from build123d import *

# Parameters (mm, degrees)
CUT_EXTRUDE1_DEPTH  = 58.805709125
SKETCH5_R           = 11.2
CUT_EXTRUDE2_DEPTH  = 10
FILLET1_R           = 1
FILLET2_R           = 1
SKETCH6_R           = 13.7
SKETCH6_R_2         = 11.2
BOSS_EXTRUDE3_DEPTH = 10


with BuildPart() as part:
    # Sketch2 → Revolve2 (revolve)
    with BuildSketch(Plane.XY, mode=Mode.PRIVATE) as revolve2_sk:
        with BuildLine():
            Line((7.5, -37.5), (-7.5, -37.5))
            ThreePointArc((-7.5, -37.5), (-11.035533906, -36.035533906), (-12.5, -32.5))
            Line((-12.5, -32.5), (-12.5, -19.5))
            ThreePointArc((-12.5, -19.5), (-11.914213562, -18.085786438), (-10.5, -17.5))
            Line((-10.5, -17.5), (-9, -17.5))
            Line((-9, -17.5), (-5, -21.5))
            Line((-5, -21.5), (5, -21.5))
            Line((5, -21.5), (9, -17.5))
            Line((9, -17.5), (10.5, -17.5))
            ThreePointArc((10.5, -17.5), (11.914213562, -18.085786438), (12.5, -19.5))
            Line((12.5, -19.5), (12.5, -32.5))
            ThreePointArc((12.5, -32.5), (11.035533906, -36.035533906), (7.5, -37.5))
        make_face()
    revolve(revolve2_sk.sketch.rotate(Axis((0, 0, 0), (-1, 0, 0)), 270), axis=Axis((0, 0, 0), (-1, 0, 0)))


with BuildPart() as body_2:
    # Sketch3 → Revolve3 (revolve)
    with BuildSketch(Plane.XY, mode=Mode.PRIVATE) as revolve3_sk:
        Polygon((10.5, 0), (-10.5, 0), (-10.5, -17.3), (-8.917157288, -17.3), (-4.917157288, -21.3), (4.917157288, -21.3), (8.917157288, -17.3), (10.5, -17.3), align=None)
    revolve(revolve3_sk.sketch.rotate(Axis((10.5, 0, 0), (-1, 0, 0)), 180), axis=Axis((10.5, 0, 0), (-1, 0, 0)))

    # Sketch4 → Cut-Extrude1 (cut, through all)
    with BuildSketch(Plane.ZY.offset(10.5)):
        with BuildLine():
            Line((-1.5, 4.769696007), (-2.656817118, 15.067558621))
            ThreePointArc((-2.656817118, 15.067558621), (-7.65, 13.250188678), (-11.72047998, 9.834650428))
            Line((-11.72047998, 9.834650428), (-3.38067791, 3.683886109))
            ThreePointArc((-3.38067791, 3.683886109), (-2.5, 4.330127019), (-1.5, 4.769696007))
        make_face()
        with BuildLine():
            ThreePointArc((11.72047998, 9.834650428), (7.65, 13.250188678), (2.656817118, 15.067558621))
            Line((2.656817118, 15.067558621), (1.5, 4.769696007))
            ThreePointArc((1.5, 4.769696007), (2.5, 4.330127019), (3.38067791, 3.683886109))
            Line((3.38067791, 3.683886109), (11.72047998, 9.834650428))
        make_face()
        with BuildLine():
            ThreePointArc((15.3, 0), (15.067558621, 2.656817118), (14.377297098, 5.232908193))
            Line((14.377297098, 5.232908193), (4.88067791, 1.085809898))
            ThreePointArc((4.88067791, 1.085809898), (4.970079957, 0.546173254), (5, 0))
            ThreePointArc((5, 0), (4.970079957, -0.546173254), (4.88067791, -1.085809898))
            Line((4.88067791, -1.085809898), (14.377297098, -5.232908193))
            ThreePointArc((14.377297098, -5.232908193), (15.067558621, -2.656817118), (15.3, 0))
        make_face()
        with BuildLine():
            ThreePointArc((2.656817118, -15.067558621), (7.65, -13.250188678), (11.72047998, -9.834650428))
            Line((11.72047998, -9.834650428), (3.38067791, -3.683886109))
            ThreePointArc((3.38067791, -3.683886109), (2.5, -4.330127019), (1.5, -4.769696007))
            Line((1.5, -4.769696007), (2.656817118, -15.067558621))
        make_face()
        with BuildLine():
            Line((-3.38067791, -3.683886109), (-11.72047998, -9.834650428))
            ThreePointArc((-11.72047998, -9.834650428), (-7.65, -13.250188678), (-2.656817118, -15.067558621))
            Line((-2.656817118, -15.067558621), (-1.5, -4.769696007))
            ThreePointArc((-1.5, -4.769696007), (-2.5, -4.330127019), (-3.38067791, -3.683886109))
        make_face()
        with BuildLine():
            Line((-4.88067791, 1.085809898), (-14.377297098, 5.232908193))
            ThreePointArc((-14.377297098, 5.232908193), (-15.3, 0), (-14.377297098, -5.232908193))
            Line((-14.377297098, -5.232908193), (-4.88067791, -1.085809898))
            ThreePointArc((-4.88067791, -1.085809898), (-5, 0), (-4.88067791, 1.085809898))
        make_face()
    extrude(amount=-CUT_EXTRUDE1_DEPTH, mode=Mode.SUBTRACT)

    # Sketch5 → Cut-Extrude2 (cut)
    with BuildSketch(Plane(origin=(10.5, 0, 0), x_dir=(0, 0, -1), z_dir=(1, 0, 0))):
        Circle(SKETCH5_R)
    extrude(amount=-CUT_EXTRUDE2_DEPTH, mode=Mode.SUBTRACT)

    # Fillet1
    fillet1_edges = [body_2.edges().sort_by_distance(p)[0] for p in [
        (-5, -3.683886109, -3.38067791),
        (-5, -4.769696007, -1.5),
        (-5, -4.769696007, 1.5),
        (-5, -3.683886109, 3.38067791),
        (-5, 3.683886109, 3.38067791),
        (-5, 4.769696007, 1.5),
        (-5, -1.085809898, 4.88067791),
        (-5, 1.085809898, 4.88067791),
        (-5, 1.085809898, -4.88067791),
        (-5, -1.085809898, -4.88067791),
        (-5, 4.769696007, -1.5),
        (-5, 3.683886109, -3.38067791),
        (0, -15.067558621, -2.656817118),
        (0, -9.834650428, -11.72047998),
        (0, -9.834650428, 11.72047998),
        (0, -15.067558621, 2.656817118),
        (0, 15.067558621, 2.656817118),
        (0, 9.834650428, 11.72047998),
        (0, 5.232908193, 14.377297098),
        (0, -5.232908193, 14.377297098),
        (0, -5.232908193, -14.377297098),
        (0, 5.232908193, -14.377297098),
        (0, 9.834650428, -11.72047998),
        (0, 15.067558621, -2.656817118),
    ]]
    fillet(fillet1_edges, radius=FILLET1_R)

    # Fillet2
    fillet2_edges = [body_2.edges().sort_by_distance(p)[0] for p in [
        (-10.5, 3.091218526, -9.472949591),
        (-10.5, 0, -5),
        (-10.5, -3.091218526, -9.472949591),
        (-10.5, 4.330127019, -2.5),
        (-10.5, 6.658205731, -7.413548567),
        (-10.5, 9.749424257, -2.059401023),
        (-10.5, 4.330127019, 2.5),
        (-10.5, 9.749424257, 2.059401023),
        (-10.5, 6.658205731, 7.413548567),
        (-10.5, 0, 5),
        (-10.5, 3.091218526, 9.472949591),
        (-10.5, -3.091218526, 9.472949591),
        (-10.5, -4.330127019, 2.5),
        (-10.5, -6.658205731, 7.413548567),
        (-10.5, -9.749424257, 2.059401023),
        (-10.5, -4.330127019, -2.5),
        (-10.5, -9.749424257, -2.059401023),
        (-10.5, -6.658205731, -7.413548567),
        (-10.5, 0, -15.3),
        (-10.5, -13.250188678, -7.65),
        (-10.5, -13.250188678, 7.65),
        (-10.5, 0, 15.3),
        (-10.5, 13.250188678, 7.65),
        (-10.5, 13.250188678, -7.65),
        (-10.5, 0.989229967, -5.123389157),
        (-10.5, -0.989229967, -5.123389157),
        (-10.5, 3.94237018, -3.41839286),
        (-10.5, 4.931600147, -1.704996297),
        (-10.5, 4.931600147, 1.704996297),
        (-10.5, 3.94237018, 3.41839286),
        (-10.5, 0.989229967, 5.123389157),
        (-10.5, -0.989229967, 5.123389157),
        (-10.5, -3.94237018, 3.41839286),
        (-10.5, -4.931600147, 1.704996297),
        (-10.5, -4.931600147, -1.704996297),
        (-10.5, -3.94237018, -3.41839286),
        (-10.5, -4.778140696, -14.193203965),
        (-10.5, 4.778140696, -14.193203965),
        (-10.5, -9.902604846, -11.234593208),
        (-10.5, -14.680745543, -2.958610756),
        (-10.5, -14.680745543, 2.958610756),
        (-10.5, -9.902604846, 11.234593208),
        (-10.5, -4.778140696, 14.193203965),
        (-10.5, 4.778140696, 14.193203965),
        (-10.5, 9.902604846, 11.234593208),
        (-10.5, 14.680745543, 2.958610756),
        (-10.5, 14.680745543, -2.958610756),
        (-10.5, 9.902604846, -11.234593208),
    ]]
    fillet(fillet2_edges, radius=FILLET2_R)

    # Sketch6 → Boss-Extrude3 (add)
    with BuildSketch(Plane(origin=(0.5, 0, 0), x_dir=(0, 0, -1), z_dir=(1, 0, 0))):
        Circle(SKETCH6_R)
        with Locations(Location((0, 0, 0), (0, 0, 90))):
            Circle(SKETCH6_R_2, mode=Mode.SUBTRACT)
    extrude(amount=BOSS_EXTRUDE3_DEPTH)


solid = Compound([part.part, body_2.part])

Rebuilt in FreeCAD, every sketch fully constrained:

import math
import FreeCAD as App
import Part
import Sketcher

V = App.Vector


def edges_at(feature, points):
    """Names of the edges that pass closest to the given points."""
    edges = feature.Shape.Edges
    near = lambda p: min(range(len(edges)), key=lambda i: edges[i].distToShape(Part.Vertex(*p))[0])
    return sorted({f"Edge{near(p) + 1}" for p in points})


def add_polygon(sketch, points):
    """Adds a closed chain of lines whose ends are joined by coincident constraints."""
    first, n = sketch.GeometryCount, len(points)
    for a, b in zip(points, points[1:] + points[:1]):
        sketch.addGeometry(Part.LineSegment(App.Vector(*a, 0), App.Vector(*b, 0)), False)
    for i in range(n):
        sketch.addConstraint(Sketcher.Constraint("Coincident", first + i, 2, first + (i + 1) % n, 1))

doc = App.newDocument("Part")
params = doc.addObject("Spreadsheet::Sheet", "Params")
for row, (alias, value) in enumerate([
    ("sketch1_radius", "5 mm"),
    ("sketch1_radius2", "2 mm"),
    ("sketch1_width", "15 mm"),
    ("sketch1_width2", "10 mm"),
    ("sketch1_height", "13 mm"),
    ("revolution_angle", "360 deg"),
    ("sketch2_width", "21 mm"),
    ("sketch2_height", "17.3 mm"),
    ("revolution2_angle", "360 deg"),
    ("sketch3_radius", "5 mm"),
    ("sketch3_radius2", "15.3 mm"),
    ("sketch4_diameter", "22.4 mm"),
    ("pocket2_length", "10 mm"),
    ("fillet_radius", "1 mm"),
    ("fillet2_radius", "1 mm"),
    ("sketch5_diameter", "27.4 mm"),
    ("sketch5_diameter2", "22.4 mm"),
    ("pad1_length", "10 mm"),
], start=1):
    params.set(f"A{row}", alias)
    params.set(f"B{row}", "=" + value)
    params.setAlias(f"B{row}", alias)

body = doc.addObject("PartDesign::Body", "Body")

sketch1 = body.newObject("Sketcher::SketchObject", "Sketch")
sketch1.AttachmentSupport = (doc.getObject("XY_Plane"), [""])
sketch1.MapMode = "FlatFace"
sketch1.addGeometry([
    Part.LineSegment(V(-7.5, -37.5, 0), V(7.5, -37.5, 0)),
    Part.ArcOfCircle(Part.Circle(V(7.5, -32.5, 0), V(0, 0, 1), 5), math.radians(-90), math.radians(0)),
    Part.LineSegment(V(12.5, -32.5, 0), V(12.5, -19.5, 0)),
    Part.ArcOfCircle(Part.Circle(V(10.5, -19.5, 0), V(0, 0, 1), 2), math.radians(0), math.radians(90)),
    Part.LineSegment(V(10.5, -17.5, 0), V(9, -17.5, 0)),
    Part.LineSegment(V(9, -17.5, 0), V(5, -21.5, 0)),
    Part.LineSegment(V(5, -21.5, 0), V(-5, -21.5, 0)),
    Part.LineSegment(V(-5, -21.5, 0), V(-9, -17.5, 0)),
    Part.LineSegment(V(-9, -17.5, 0), V(-10.5, -17.5, 0)),
    Part.ArcOfCircle(Part.Circle(V(-10.5, -19.5, 0), V(0, 0, 1), 2), math.radians(90), math.radians(180)),
    Part.LineSegment(V(-12.5, -19.5, 0), V(-12.5, -32.5, 0)),
    Part.ArcOfCircle(Part.Circle(V(-7.5, -32.5, 0), V(0, 0, 1), 5), math.radians(180), math.radians(270)),
], False)
sketch1.addConstraint([
    Sketcher.Constraint("Tangent", 0, 2, 1, 1),
    Sketcher.Constraint("Tangent", 1, 2, 2, 1),
    Sketcher.Constraint("Tangent", 2, 2, 3, 1),
    Sketcher.Constraint("Tangent", 3, 2, 4, 1),
    Sketcher.Constraint("Coincident", 4, 2, 5, 1),
    Sketcher.Constraint("Coincident", 5, 2, 6, 1),
    Sketcher.Constraint("Coincident", 6, 2, 7, 1),
    Sketcher.Constraint("Coincident", 7, 2, 8, 1),
    Sketcher.Constraint("Tangent", 8, 2, 9, 1),
    Sketcher.Constraint("Tangent", 9, 2, 10, 1),
    Sketcher.Constraint("Tangent", 10, 2, 11, 1),
    Sketcher.Constraint("Tangent", 11, 2, 0, 1),
    Sketcher.Constraint("Horizontal", 0),
    Sketcher.Constraint("Vertical", 2),
    Sketcher.Constraint("Horizontal", 4),
    Sketcher.Constraint("Horizontal", 6),
    Sketcher.Constraint("Horizontal", 8),
    Sketcher.Constraint("Vertical", 10),
    Sketcher.Constraint("Equal", 3, 9),
    Sketcher.Constraint("Equal", 1, 11),
    Sketcher.Constraint("Symmetric", 3, 3, 9, 3, -2),
    Sketcher.Constraint("Perpendicular", 5, 7),
    Sketcher.Constraint("Equal", 4, 8),
    Sketcher.Constraint("Equal", 5, 7),
    Sketcher.Constraint("Radius", 1, 5.0),
    Sketcher.Constraint("Radius", 3, 2.0),
    Sketcher.Constraint("DistanceX", 0, 1, 0, 2, 15.0),
    Sketcher.Constraint("DistanceX", 6, 2, 6, 1, 10.0),
    Sketcher.Constraint("DistanceY", 2, 1, 2, 2, 13.0),
    Sketcher.Constraint("DistanceX", 4, 2, 4, 1, 1.5),
    Sketcher.Constraint("DistanceY", 1, 3, -1, 1, 32.5),
])
sketch1.setExpression("Constraints[24]", "Params.sketch1_radius")
sketch1.setExpression("Constraints[25]", "Params.sketch1_radius2")
sketch1.setExpression("Constraints[26]", "Params.sketch1_width")
sketch1.setExpression("Constraints[27]", "Params.sketch1_width2")
sketch1.setExpression("Constraints[28]", "Params.sketch1_height")
revolution = body.newObject("PartDesign::Revolution", "Revolution")
revolution.Profile = sketch1
revolution.ReferenceAxis = (sketch1, ["H_Axis"])
revolution.setExpression("Angle", "Params.revolution_angle")
body2 = doc.addObject("PartDesign::Body", "Body001")

sketch2 = body2.newObject("Sketcher::SketchObject", "Sketch001")
sketch2.AttachmentSupport = (doc.getObject("XY_Plane001"), [""])
sketch2.MapMode = "FlatFace"
add_polygon(sketch2, [(10.5, 0), (-10.5, 0), (-10.5, -17.3), (-8.9, -17.3), (-4.9, -21.3), (4.9, -21.3), (8.9, -17.3), (10.5, -17.3)])
sketch2.addConstraint([
    Sketcher.Constraint("Horizontal", 0),
    Sketcher.Constraint("Vertical", 1),
    Sketcher.Constraint("Horizontal", 2),
    Sketcher.Constraint("Horizontal", 4),
    Sketcher.Constraint("Horizontal", 6),
    Sketcher.Constraint("Vertical", 7),
    Sketcher.Constraint("Symmetric", 0, 2, 7, 2, -1, 1),
    Sketcher.Constraint("Symmetric", 2, 2, 5, 2, -2),
    Sketcher.Constraint("Perpendicular", 3, 5),
    Sketcher.Constraint("Equal", 3, 5),
    Sketcher.Constraint("DistanceX", 0, 2, 0, 1, 21.0),
    Sketcher.Constraint("DistanceY", 1, 2, 1, 1, 17.3),
    Sketcher.Constraint("DistanceX", 2, 2, 3, 2, 4.0),
    Sketcher.Constraint("DistanceX", 2, 1, 2, 2, 1.582843),
])
sketch2.setExpression("Constraints[18]", "Params.sketch2_width")
sketch2.setExpression("Constraints[19]", "Params.sketch2_height")
revolution2 = body2.newObject("PartDesign::Revolution", "Revolution001")
revolution2.Profile = sketch2
revolution2.ReferenceAxis = (sketch2, ["H_Axis"])
revolution2.setExpression("Angle", "Params.revolution2_angle")

sketch3 = body2.newObject("Sketcher::SketchObject", "Sketch002")
sketch3.AttachmentSupport = (doc.getObject("YZ_Plane001"), [""])
sketch3.MapMode = "FlatFace"
sketch3.AttachmentOffset = App.Placement(V(0, 0, -10.5), App.Rotation())
sketch3.addGeometry([
    Part.LineSegment(V(4.8, -1.5, 0), V(15.1, -2.7, 0)),
    Part.ArcOfCircle(Part.Circle(V(0, 0, 0), V(0, 0, 1), 15.3), math.radians(-50), math.radians(-10)),
    Part.LineSegment(V(9.8, -11.7, 0), V(3.7, -3.4, 0)),
    Part.ArcOfCircle(Part.Circle(V(0, 0, 0), V(0, 0, 1), 5), math.radians(-43), math.radians(-17)),
    Part.ArcOfCircle(Part.Circle(V(0, 0, 0), V(0, 0, 1), 15.3), math.radians(10), math.radians(50)),
    Part.LineSegment(V(15.1, 2.7, 0), V(4.8, 1.5, 0)),
    Part.ArcOfCircle(Part.Circle(V(0, 0, 0), V(0, 0, 1), 5), math.radians(17), math.radians(43)),
    Part.LineSegment(V(3.7, 3.4, 0), V(9.8, 11.7, 0)),
    Part.ArcOfCircle(Part.Circle(V(0, 0, 0), V(0, 0, 1), 15.3), math.radians(70), math.radians(90)),
    Part.LineSegment(V(5.2, 14.4, 0), V(1.1, 4.9, 0)),
    Part.ArcOfCircle(Part.Circle(V(0, 0, 0), V(0, 0, 1), 5), math.radians(77.46), math.radians(90)),
    Part.ArcOfCircle(Part.Circle(V(0, 0, 0), V(0, 0, 1), 5), math.radians(90), math.radians(102.54)),
    Part.LineSegment(V(-1.1, 4.9, 0), V(-5.2, 14.4, 0)),
    Part.ArcOfCircle(Part.Circle(V(0, 0, 0), V(0, 0, 1), 15.3), math.radians(90), math.radians(110)),
    Part.ArcOfCircle(Part.Circle(V(0, 0, 0), V(0, 0, 1), 15.3), math.radians(130), math.radians(170)),
    Part.LineSegment(V(-9.8, 11.7, 0), V(-3.7, 3.4, 0)),
    Part.ArcOfCircle(Part.Circle(V(0, 0, 0), V(0, 0, 1), 5), math.radians(137), math.radians(163)),
    Part.LineSegment(V(-4.8, 1.5, 0), V(-15.1, 2.7, 0)),
    Part.LineSegment(V(-3.7, -3.4, 0), V(-9.8, -11.7, 0)),
    Part.ArcOfCircle(Part.Circle(V(0, 0, 0), V(0, 0, 1), 15.3), math.radians(-170), math.radians(-130)),
    Part.LineSegment(V(-15.1, -2.7, 0), V(-4.8, -1.5, 0)),
    Part.ArcOfCircle(Part.Circle(V(0, 0, 0), V(0, 0, 1), 5), math.radians(-163), math.radians(-137)),
    Part.LineSegment(V(1.1, -4.9, 0), V(5.2, -14.4, 0)),
    Part.ArcOfCircle(Part.Circle(V(0, 0, 0), V(0, 0, 1), 15.3), math.radians(-110), math.radians(-70)),
    Part.LineSegment(V(-5.2, -14.4, 0), V(-1.1, -4.9, 0)),
    Part.ArcOfCircle(Part.Circle(V(0, 0, 0), V(0, 0, 1), 5), math.radians(-103), math.radians(-77)),
], False)
sketch3.addConstraint([
    Sketcher.Constraint("Coincident", 0, 2, 1, 2),
    Sketcher.Constraint("Coincident", 1, 1, 2, 1),
    Sketcher.Constraint("Coincident", 2, 2, 3, 1),
    Sketcher.Constraint("Coincident", 3, 2, 0, 1),
    Sketcher.Constraint("Coincident", 4, 1, 5, 1),
    Sketcher.Constraint("Coincident", 5, 2, 6, 1),
    Sketcher.Constraint("Coincident", 6, 2, 7, 1),
    Sketcher.Constraint("Coincident", 7, 2, 4, 2),
    Sketcher.Constraint("Coincident", 8, 1, 9, 1),
    Sketcher.Constraint("Coincident", 9, 2, 10, 1),
    Sketcher.Constraint("Tangent", 10, 2, 11, 1),
    Sketcher.Constraint("Coincident", 11, 2, 12, 1),
    Sketcher.Constraint("Coincident", 12, 2, 13, 2),
    Sketcher.Constraint("Tangent", 13, 1, 8, 2),
    Sketcher.Constraint("Coincident", 14, 1, 15, 1),
    Sketcher.Constraint("Coincident", 15, 2, 16, 1),
    Sketcher.Constraint("Coincident", 16, 2, 17, 1),
    Sketcher.Constraint("Coincident", 17, 2, 14, 2),
    Sketcher.Constraint("Coincident", 18, 2, 19, 2),
    Sketcher.Constraint("Coincident", 19, 1, 20, 1),
    Sketcher.Constraint("Coincident", 20, 2, 21, 1),
    Sketcher.Constraint("Coincident", 21, 2, 18, 1),
    Sketcher.Constraint("Coincident", 22, 2, 23, 2),
    Sketcher.Constraint("Coincident", 23, 1, 24, 1),
    Sketcher.Constraint("Coincident", 24, 2, 25, 1),
    Sketcher.Constraint("Coincident", 25, 2, 22, 1),
    Sketcher.Constraint("Coincident", 1, 3, -1, 1),
    Sketcher.Constraint("Coincident", 3, 3, -1, 1),
    Sketcher.Constraint("Coincident", 4, 3, -1, 1),
    Sketcher.Constraint("Coincident", 6, 3, -1, 1),
    Sketcher.Constraint("Coincident", 8, 3, -1, 1),
    Sketcher.Constraint("Coincident", 10, 3, -1, 1),
    Sketcher.Constraint("Coincident", 14, 3, -1, 1),
    Sketcher.Constraint("Coincident", 16, 3, -1, 1),
    Sketcher.Constraint("Coincident", 19, 3, -1, 1),
    Sketcher.Constraint("Coincident", 21, 3, -1, 1),
    Sketcher.Constraint("Coincident", 23, 3, -1, 1),
    Sketcher.Constraint("Coincident", 25, 3, -1, 1),
    Sketcher.Constraint("Equal", 1, 4),
    Sketcher.Constraint("Equal", 3, 6),
    Sketcher.Constraint("Equal", 4, 8),
    Sketcher.Constraint("Equal", 6, 10),
    Sketcher.Constraint("Equal", 10, 11),
    Sketcher.Constraint("Equal", 8, 13),
    Sketcher.Constraint("Equal", 13, 14),
    Sketcher.Constraint("Equal", 11, 16),
    Sketcher.Constraint("Equal", 14, 19),
    Sketcher.Constraint("Equal", 16, 21),
    Sketcher.Constraint("Equal", 19, 23),
    Sketcher.Constraint("Equal", 21, 25),
    Sketcher.Constraint("PointOnObject", 10, 2, -2),
    Sketcher.Constraint("PointOnObject", 13, 1, -2),
    Sketcher.Constraint("Parallel", 2, 15),
    Sketcher.Constraint("Parallel", 0, 17),
    Sketcher.Constraint("Parallel", 7, 18),
    Sketcher.Constraint("Parallel", 5, 20),
    Sketcher.Constraint("Parallel", 12, 22),
    Sketcher.Constraint("Parallel", 9, 24),
    Sketcher.Constraint("Horizontal", 9, 2, 11, 2),
    Sketcher.Constraint("Horizontal", 8, 1, 12, 2),
    Sketcher.Constraint("Horizontal", 7, 2, 14, 1),
    Sketcher.Constraint("Horizontal", 6, 2, 15, 2),
    Sketcher.Constraint("Horizontal", 5, 2, 16, 2),
    Sketcher.Constraint("Horizontal", 4, 1, 17, 2),
    Sketcher.Constraint("Horizontal", 1, 1, 18, 2),
    Sketcher.Constraint("Horizontal", 0, 2, 19, 1),
    Sketcher.Constraint("Horizontal", 22, 2, 23, 1),
    Sketcher.Constraint("Vertical", 0, 2, 4, 1),
    Sketcher.Constraint("Vertical", 2, 2, 6, 2),
    Sketcher.Constraint("Vertical", 8, 1, 22, 2),
    Sketcher.Constraint("Equal", 0, 2),
    Sketcher.Constraint("Equal", 7, 9),
    Sketcher.Constraint("Radius", 3, 5.0),
    Sketcher.Constraint("Radius", 1, 15.3),
    Sketcher.Constraint("DistanceY", 3, 2, 5, 2, 3.0),
    Sketcher.Constraint("DistanceY", 6, 2, 9, 2, 1.5),
    Sketcher.Constraint("DistanceX", 12, 2, 11, 2, 4.147098),
    Sketcher.Constraint("DistanceX", -1, 1, 0, 2, 15.067559),
])
sketch3.setExpression("Constraints[72]", "Params.sketch3_radius")
sketch3.setExpression("Constraints[73]", "Params.sketch3_radius2")
pocket1 = body2.newObject("PartDesign::Pocket", "Pocket")
pocket1.Profile = sketch3
pocket1.Type = "ThroughAll"
pocket1.Reversed = True

sketch4 = body2.newObject("Sketcher::SketchObject", "Sketch003")
sketch4.AttachmentSupport = (doc.getObject("YZ_Plane001"), [""])
sketch4.MapMode = "FlatFace"
sketch4.AttachmentOffset = App.Placement(V(0, 0, 10.5), App.Rotation())
sketch4.addGeometry(Part.Circle(V(0, 0, 0), V(0, 0, 1), 11), False)
sketch4.addConstraint([
    Sketcher.Constraint("Coincident", 0, 3, -1, 1),
    Sketcher.Constraint("Diameter", 0, 22.4),
])
sketch4.setExpression("Constraints[1]", "Params.sketch4_diameter")
pocket2 = body2.newObject("PartDesign::Pocket", "Pocket001")
pocket2.Profile = sketch4
pocket2.setExpression("Length", "Params.pocket2_length")
doc.recompute()

fillet = body2.newObject("PartDesign::Fillet", "Fillet")
fillet.Base = (pocket2, edges_at(pocket2, [
    (-5, -3.684, -3.381),
    (-5, -4.77, -1.5),
    (-5, -4.77, 1.5),
    (-5, -3.684, 3.381),
    (-5, 3.684, 3.381),
    (-5, 4.77, 1.5),
    (-5, -1.086, 4.881),
    (-5, 1.086, 4.881),
    (-5, 1.086, -4.881),
    (-5, -1.086, -4.881),
    (-5, 4.77, -1.5),
    (-5, 3.684, -3.381),
    (0, -15.068, -2.657),
    (0, -9.835, -11.72),
    (0, -9.835, 11.72),
    (0, -15.068, 2.657),
    (0, 15.068, 2.657),
    (0, 9.835, 11.72),
    (0, 5.233, 14.377),
    (0, -5.233, 14.377),
    (0, -5.233, -14.377),
    (0, 5.233, -14.377),
    (0, 9.835, -11.72),
    (0, 15.068, -2.657),
]))
fillet.setExpression("Radius", "Params.fillet_radius")
doc.recompute()

fillet2 = body2.newObject("PartDesign::Fillet", "Fillet001")
fillet2.Base = (fillet, edges_at(fillet, [
    (-10.5, 3.091, -9.473),
    (-10.5, 0, -5),
    (-10.5, -3.091, -9.473),
    (-10.5, 4.33, -2.5),
    (-10.5, 6.658, -7.414),
    (-10.5, 9.749, -2.059),
    (-10.5, 4.33, 2.5),
    (-10.5, 9.749, 2.059),
    (-10.5, 6.658, 7.414),
    (-10.5, -0.198, 4.996),
    (-10.5, 3.091, 9.473),
    (-10.5, -3.091, 9.473),
    (-10.5, -4.33, 2.5),
    (-10.5, -6.658, 7.414),
    (-10.5, -9.749, 2.059),
    (-10.5, -4.33, -2.5),
    (-10.5, -9.749, -2.059),
    (-10.5, -6.658, -7.414),
    (-10.5, 0, -15.3),
    (-10.5, -13.25, -7.65),
    (-10.5, -13.25, 7.65),
    (-10.5, -2.092, 15.156),
    (-10.5, 13.25, 7.65),
    (-10.5, 13.25, -7.65),
    (-10.5, 0.989, -5.123),
    (-10.5, -0.989, -5.123),
    (-10.5, 3.942, -3.418),
    (-10.5, 4.932, -1.705),
    (-10.5, 4.932, 1.705),
    (-10.5, 3.942, 3.418),
    (-10.5, 0.989, 5.123),
    (-10.5, -0.989, 5.123),
    (-10.5, -3.942, 3.418),
    (-10.5, -4.932, 1.705),
    (-10.5, -4.932, -1.705),
    (-10.5, -3.942, -3.418),
    (-10.5, -4.778, -14.193),
    (-10.5, 4.778, -14.193),
    (-10.5, -9.903, -11.235),
    (-10.5, -14.681, -2.959),
    (-10.5, -14.681, 2.959),
    (-10.5, -9.903, 11.235),
    (-10.5, -4.778, 14.193),
    (-10.5, 4.778, 14.193),
    (-10.5, 9.903, 11.235),
    (-10.5, 14.681, 2.959),
    (-10.5, 14.681, -2.959),
    (-10.5, 9.903, -11.235),
]))
fillet2.setExpression("Radius", "Params.fillet2_radius")

sketch5 = body2.newObject("Sketcher::SketchObject", "Sketch004")
sketch5.AttachmentSupport = (doc.getObject("YZ_Plane001"), [""])
sketch5.MapMode = "FlatFace"
sketch5.AttachmentOffset = App.Placement(V(0, 0, 0.5), App.Rotation())
sketch5.addGeometry([
    Part.Circle(V(0, 0, 0), V(0, 0, 1), 14),
    Part.Circle(V(0, 0, 0), V(0, 0, 1), 11),
], False)
sketch5.addConstraint([
    Sketcher.Constraint("Coincident", 0, 3, -1, 1),
    Sketcher.Constraint("Coincident", 1, 3, -1, 1),
    Sketcher.Constraint("Diameter", 0, 27.4),
    Sketcher.Constraint("Diameter", 1, 22.4),
])
sketch5.setExpression("Constraints[2]", "Params.sketch5_diameter")
sketch5.setExpression("Constraints[3]", "Params.sketch5_diameter2")
pad1 = body2.newObject("PartDesign::Pad", "Pad")
pad1.Profile = sketch5
pad1.setExpression("Length", "Params.pad1_length")

doc.recompute()
